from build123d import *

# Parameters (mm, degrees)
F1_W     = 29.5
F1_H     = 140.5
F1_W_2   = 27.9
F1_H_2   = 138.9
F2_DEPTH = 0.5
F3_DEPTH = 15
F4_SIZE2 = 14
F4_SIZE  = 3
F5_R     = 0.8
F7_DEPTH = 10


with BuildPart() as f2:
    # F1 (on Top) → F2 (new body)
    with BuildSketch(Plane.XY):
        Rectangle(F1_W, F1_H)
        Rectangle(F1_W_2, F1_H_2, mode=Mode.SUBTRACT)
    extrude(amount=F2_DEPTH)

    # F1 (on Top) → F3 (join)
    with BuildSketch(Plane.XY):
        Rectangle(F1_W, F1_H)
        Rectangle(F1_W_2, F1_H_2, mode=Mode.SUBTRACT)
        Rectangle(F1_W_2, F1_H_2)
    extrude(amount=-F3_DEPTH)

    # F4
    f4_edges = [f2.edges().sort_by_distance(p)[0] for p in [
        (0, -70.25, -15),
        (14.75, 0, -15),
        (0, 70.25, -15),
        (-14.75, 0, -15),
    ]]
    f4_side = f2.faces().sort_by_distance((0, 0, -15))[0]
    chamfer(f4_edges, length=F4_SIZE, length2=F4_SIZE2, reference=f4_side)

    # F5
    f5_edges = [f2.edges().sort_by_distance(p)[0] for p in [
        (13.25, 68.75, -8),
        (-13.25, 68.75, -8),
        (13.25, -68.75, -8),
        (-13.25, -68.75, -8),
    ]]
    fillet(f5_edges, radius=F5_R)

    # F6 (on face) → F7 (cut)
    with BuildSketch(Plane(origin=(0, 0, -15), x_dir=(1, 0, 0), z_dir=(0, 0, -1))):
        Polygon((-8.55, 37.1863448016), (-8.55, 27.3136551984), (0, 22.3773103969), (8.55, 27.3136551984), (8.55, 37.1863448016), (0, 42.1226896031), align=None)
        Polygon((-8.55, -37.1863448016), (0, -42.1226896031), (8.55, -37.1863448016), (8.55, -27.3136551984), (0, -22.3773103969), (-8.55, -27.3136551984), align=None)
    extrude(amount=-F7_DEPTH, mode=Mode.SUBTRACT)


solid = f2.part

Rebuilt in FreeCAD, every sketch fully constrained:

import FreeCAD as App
import Part
import Sketcher
Q = App.Units.Quantity


def edges_at(feature, points):
    """Names of the edges that pass closest to the given points."""
    edges = feature.Shape.Edges
    near = lambda p: min(range(len(edges)), key=lambda i: edges[i].distToShape(Part.Vertex(*p))[0])
    return sorted({f"Edge{near(p) + 1}" for p in points})

doc = App.newDocument("Part")
params = doc.addObject("Spreadsheet::Sheet", "Params")
for row, (alias, value) in enumerate([
    ("sketch1_width", "29.5 mm"),
    ("sketch1_width2", "27.9 mm"),
    ("sketch1_height", "140.5 mm"),
    ("sketch1_height2", "138.9 mm"),
    ("pad1_length", "0.5 mm"),
    ("sketch2_width", "29.5 mm"),
    ("sketch2_height", "140.5 mm"),
    ("pad2_length", "15 mm"),
    ("chamfer_size", "3 mm"),
    ("chamfer_size2", "14 mm"),
    ("fillet_radius", "0.8 mm"),
    ("pocket1_length", "10 mm"),
], start=1):
    params.set(f"A{row}", alias)
    params.set(f"B{row}", "=" + value)
    params.setAlias(f"B{row}", alias)

body = doc.addObject("PartDesign::Body", "Body")

# Sketch on XY plane
sketch1 = doc.addObject("Sketcher::SketchObject", "Sketch")
body.addObject(sketch1)
sketch1.AttachmentSupport = (doc.XY_Plane, [""])
sketch1.MapMode = "FlatFace"
sketch1.addGeometry([
    Part.LineSegment(App.Vector(-15, 70, 0), App.Vector(-15, -70, 0)),  # 0
    Part.LineSegment(App.Vector(-15, -70, 0), App.Vector(15, -70, 0)),  # 1
    Part.LineSegment(App.Vector(15, -70, 0), App.Vector(15, 70, 0)),  # 2
    Part.LineSegment(App.Vector(15, 70, 0), App.Vector(-15, 70, 0)),  # 3
    Part.LineSegment(App.Vector(14, -69, 0), App.Vector(-14, -69, 0)),  # 4
    Part.LineSegment(App.Vector(-14, -69, 0), App.Vector(-14, 69, 0)),  # 5
    Part.LineSegment(App.Vector(-14, 69, 0), App.Vector(14, 69, 0)),  # 6
    Part.LineSegment(App.Vector(14, 69, 0), App.Vector(14, -69, 0)),  # 7
], False)
sketch1.addConstraint([
    Sketcher.Constraint("Coincident", 0, 2, 1, 1),
    Sketcher.Constraint("Coincident", 1, 2, 2, 1),
    Sketcher.Constraint("Coincident", 2, 2, 3, 1),
    Sketcher.Constraint("Coincident", 3, 2, 0, 1),
    Sketcher.Constraint("Coincident", 4, 2, 5, 1),
    Sketcher.Constraint("Coincident", 5, 2, 6, 1),
    Sketcher.Constraint("Coincident", 6, 2, 7, 1),
    Sketcher.Constraint("Coincident", 7, 2, 4, 1),
    Sketcher.Constraint("Vertical", 0),
    Sketcher.Constraint("Horizontal", 1),
    Sketcher.Constraint("Vertical", 2),
    Sketcher.Constraint("Horizontal", 3),
    Sketcher.Constraint("Horizontal", 4),
    Sketcher.Constraint("Vertical", 5),
    Sketcher.Constraint("Horizontal", 6),
    Sketcher.Constraint("Vertical", 7),
    Sketcher.Constraint("Symmetric", 0, 2, 2, 2, -1, 1),
    Sketcher.Constraint("Symmetric", 4, 2, 6, 2, -1, 1),
    Sketcher.Constraint("DistanceX", 1, 1, 1, 2, Q("29.5 mm")),
    Sketcher.Constraint("DistanceX", 4, 2, 4, 1, Q("27.9 mm")),
    Sketcher.Constraint("DistanceY", 0, 2, 0, 1, Q("140.5 mm")),
    Sketcher.Constraint("DistanceY", 5, 1, 5, 2, Q("138.9 mm")),
])
sketch1.setExpression("Constraints[18]", "Params.sketch1_width")
sketch1.setExpression("Constraints[19]", "Params.sketch1_width2")
sketch1.setExpression("Constraints[20]", "Params.sketch1_height")
sketch1.setExpression("Constraints[21]", "Params.sketch1_height2")
pad1 = doc.addObject("PartDesign::Pad", "Pad")
body.addObject(pad1)
pad1.Profile = sketch1
pad1.setExpression("Length", "Params.pad1_length")

# Sketch on XY plane
sketch2 = doc.addObject("Sketcher::SketchObject", "Sketch001")
body.addObject(sketch2)
sketch2.AttachmentSupport = (doc.XY_Plane, [""])
sketch2.MapMode = "FlatFace"
sketch2.addGeometry([
    Part.LineSegment(App.Vector(-15, 70, 0), App.Vector(-15, -70, 0)),
    Part.LineSegment(App.Vector(-15, -70, 0), App.Vector(15, -70, 0)),
    Part.LineSegment(App.Vector(15, -70, 0), App.Vector(15, 70, 0)),
    Part.LineSegment(App.Vector(15, 70, 0), App.Vector(-15, 70, 0)),
], False)
sketch2.addConstraint([
    Sketcher.Constraint("Coincident", 0, 2, 1, 1),
    Sketcher.Constraint("Coincident", 1, 2, 2, 1),
    Sketcher.Constraint("Coincident", 2, 2, 3, 1),
    Sketcher.Constraint("Coincident", 3, 2, 0, 1),
    Sketcher.Constraint("Vertical", 0),
    Sketcher.Constraint("Horizontal", 1),
    Sketcher.Constraint("Vertical", 2),
    Sketcher.Constraint("Horizontal", 3),
    Sketcher.Constraint("Symmetric", 0, 2, 2, 2, -1, 1),
    Sketcher.Constraint("DistanceX", 1, 1, 1, 2, Q("29.5 mm")),
    Sketcher.Constraint("DistanceY", 0, 2, 0, 1, Q("140.5 mm")),
])
sketch2.setExpression("Constraints[9]", "Params.sketch2_width")
sketch2.setExpression("Constraints[10]", "Params.sketch2_height")
pad2 = doc.addObject("PartDesign::Pad", "Pad001")
body.addObject(pad2)
pad2.Profile = sketch2
pad2.setExpression("Length", "Params.pad2_length")
pad2.Reversed = True
doc.recompute()

chamfer = doc.addObject("PartDesign::Chamfer", "Chamfer")
body.addObject(chamfer)
chamfer.Base = (pad2, edges_at(pad2, [
    (0, -70.25, -15),
    (14.75, 0, -15),
    (0, 70.25, -15),
    (-14.75, 0, -15),
]))
chamfer.ChamferType = "Two distances"
chamfer.setExpression("Size", "Params.chamfer_size")
chamfer.setExpression("Size2", "Params.chamfer_size2")
doc.recompute()

fillet = doc.addObject("PartDesign::Fillet", "Fillet")
body.addObject(fillet)
fillet.Base = (chamfer, edges_at(chamfer, [
    (13.25, 68.75, -8),
    (-13.25, 68.75, -8),
    (13.25, -68.75, -8),
    (-13.25, -68.75, -8),
]))
fillet.setExpression("Radius", "Params.fillet_radius")

# Sketch on XY plane
sketch3 = doc.addObject("Sketcher::SketchObject", "Sketch002")
body.addObject(sketch3)
sketch3.AttachmentSupport = (doc.XY_Plane, [""])
sketch3.MapMode = "FlatFace"
sketch3.AttachmentOffset = App.Placement(App.Vector(0, 0, -15), App.Rotation())
sketch3.addGeometry([
    Part.LineSegment(App.Vector(-9, -37, 0), App.Vector(-9, -27, 0)),  # 0
    Part.LineSegment(App.Vector(-9, -27, 0), App.Vector(0, -22, 0)),  # 1
    Part.LineSegment(App.Vector(0, -22, 0), App.Vector(9, -27, 0)),  # 2
    Part.LineSegment(App.Vector(9, -27, 0), App.Vector(9, -37, 0)),  # 3
    Part.LineSegment(App.Vector(9, -37, 0), App.Vector(0, -42, 0)),  # 4
    Part.LineSegment(App.Vector(0, -42, 0), App.Vector(-9, -37, 0)),  # 5
    Part.LineSegment(App.Vector(-9, 37, 0), App.Vector(0, 42, 0)),  # 6
    Part.LineSegment(App.Vector(0, 42, 0), App.Vector(9, 37, 0)),  # 7
    Part.LineSegment(App.Vector(9, 37, 0), App.Vector(9, 27, 0)),  # 8
    Part.LineSegment(App.Vector(9, 27, 0), App.Vector(0, 22, 0)),  # 9
    Part.LineSegment(App.Vector(0, 22, 0), App.Vector(-9, 27, 0)),  # 10
    Part.LineSegment(App.Vector(-9, 27, 0), App.Vector(-9, 37, 0)),  # 11
], False)
sketch3.addConstraint([
    Sketcher.Constraint("Coincident", 0, 2, 1, 1),
    Sketcher.Constraint("Coincident", 1, 2, 2, 1),
    Sketcher.Constraint("Coincident", 2, 2, 3, 1),
    Sketcher.Constraint("Coincident", 3, 2, 4, 1),
    Sketcher.Constraint("Coincident", 4, 2, 5, 1),
    Sketcher.Constraint("Coincident", 5, 2, 0, 1),
    Sketcher.Constraint("Coincident", 6, 2, 7, 1),
    Sketcher.Constraint("Coincident", 7, 2, 8, 1),
    Sketcher.Constraint("Coincident", 8, 2, 9, 1),
    Sketcher.Constraint("Coincident", 9, 2, 10, 1),
    Sketcher.Constraint("Coincident", 10, 2, 11, 1),
    Sketcher.Constraint("Coincident", 11, 2, 6, 1),
    Sketcher.Constraint("Vertical", 0),
    Sketcher.Constraint("Vertical", 3),
    Sketcher.Constraint("Vertical", 8),
    Sketcher.Constraint("Vertical", 11),
    Sketcher.Constraint("Symmetric", 4, 2, 6, 2, -1, 1),
    Sketcher.Constraint("Symmetric", 5, 2, 7, 2, -1, 1),
    Sketcher.Constraint("Symmetric", 1, 2, 9, 2, -1, 1),
    Sketcher.Constraint("Symmetric", 2, 2, 10, 2, -1, 1),
    Sketcher.Constraint("Symmetric", 0, 2, 2, 2, -2),
    Sketcher.Constraint("PointOnObject", 1, 2, -2),
    Sketcher.Constraint("PointOnObject", 4, 2, -2),
    Sketcher.Constraint("Parallel", 1, 4),
    Sketcher.Constraint("Parallel", 2, 5),
    Sketcher.Constraint("Parallel", 4, 6),
    Sketcher.Constraint("Parallel", 6, 9),
    Sketcher.Constraint("Angle", 1, Q("30 deg")),
    Sketcher.Constraint("DistanceX", 0, 2, 2, 2, Q("17.1 mm")),
    Sketcher.Constraint("DistanceY", 1, 2, 6, 2, Q("64.5 mm")),
    Sketcher.Constraint("DistanceY", 0, 1, 0, 2, Q("9.87269 mm")),
])
pocket1 = doc.addObject("PartDesign::Pocket", "Pocket")
body.addObject(pocket1)
pocket1.Profile = sketch3
pocket1.setExpression("Length", "Params.pocket1_length")
pocket1.Reversed = True

doc.recompute()
